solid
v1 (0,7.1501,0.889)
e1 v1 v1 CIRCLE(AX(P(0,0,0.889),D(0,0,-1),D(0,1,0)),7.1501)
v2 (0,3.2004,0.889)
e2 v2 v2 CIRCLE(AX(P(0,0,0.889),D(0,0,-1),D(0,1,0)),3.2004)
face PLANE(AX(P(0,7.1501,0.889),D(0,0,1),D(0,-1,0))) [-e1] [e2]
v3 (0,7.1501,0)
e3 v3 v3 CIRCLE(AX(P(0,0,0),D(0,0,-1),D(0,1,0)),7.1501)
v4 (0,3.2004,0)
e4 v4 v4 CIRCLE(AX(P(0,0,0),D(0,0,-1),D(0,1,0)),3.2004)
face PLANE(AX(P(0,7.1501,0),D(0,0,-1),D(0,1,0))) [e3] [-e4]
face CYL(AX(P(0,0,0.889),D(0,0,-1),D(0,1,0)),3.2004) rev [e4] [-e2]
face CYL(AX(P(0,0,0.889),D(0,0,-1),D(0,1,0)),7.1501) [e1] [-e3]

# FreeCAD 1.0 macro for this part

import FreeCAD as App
import Part
import Sketcher
from FreeCAD import Vector
Q = App.Units.Quantity

doc = App.newDocument("Part")
body = doc.addObject("PartDesign::Body", "Body")

sketch1 = doc.addObject("Sketcher::SketchObject", "Sketch")
body.addObject(sketch1)
sketch1.AttachmentSupport = (doc.YZ_Plane, [""])
sketch1.MapMode = "FlatFace"
sketch1.addGeometry([
    Part.LineSegment(Vector(7.2, 0.9, 0), Vector(3.2, 0.9, 0)),
    Part.LineSegment(Vector(3.2, 0.9, 0), Vector(3.2, 0, 0)),
    Part.LineSegment(Vector(3.2, 0, 0), Vector(7.2, 0, 0)),
    Part.LineSegment(Vector(7.2, 0, 0), Vector(7.2, 0.9, 0)),
], False)
sketch1.addConstraint([
    Sketcher.Constraint("Coincident", 0, 2, 1, 1),
    Sketcher.Constraint("Coincident", 1, 2, 2, 1),
    Sketcher.Constraint("Coincident", 2, 2, 3, 1),
    Sketcher.Constraint("Coincident", 3, 2, 0, 1),
    Sketcher.Constraint("Horizontal", 0),
    Sketcher.Constraint("Vertical", 1),
    Sketcher.Constraint("Horizontal", 2),
    Sketcher.Constraint("Vertical", 3),
    Sketcher.Constraint("PointOnObject", 1, 2, -1),
    Sketcher.Constraint("DistanceY", 1, 2, 1, 1, Q("0.035 in")),
    Sketcher.Constraint("DistanceX", 0, 2, 0, 1, Q("0.1555 in")),
    Sketcher.Constraint("DistanceX", -1, 1, 0, 2, Q("0.126 in")),
])
revolution = doc.addObject("PartDesign::Revolution", "Revolution")
body.addObject(revolution)
revolution.Profile = sketch1
revolution.ReferenceAxis = (sketch1, ["V_Axis"])
revolution.Angle = 360

doc.recompute()
